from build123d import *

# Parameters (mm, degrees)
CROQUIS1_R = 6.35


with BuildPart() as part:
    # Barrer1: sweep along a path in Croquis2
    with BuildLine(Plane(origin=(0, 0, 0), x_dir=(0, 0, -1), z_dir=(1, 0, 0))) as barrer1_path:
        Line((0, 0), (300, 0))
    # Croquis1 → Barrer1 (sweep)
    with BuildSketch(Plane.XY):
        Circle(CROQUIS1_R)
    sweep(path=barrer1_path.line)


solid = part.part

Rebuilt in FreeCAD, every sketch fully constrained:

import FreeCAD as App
import Part
import Sketcher

V = App.Vector

doc = App.newDocument("Part")
body = doc.addObject("PartDesign::Body", "Body")

# Sketch on XY plane
sketch1 = body.newObject("Sketcher::SketchObject", "Sketch")
sketch1.AttachmentSupport = (doc.getObject("XY_Plane"), [""])
sketch1.MapMode = "FlatFace"
sketch1.addGeometry(Part.Circle(V(0, 0, 0), V(0, 0, 1), 6), False)
sketch1.addConstraint(Sketcher.Constraint("Coincident", 0, 3, -1, 1))
sketch1.addConstraint(Sketcher.Constraint("Diameter", 0, 12.7))

# Sketch on XZ plane
sketch2 = body.newObject("Sketcher::SketchObject", "Sketch001")
sketch2.AttachmentSupport = (doc.getObject("XZ_Plane"), [""])
sketch2.MapMode = "FlatFace"
sketch2.addGeometry(Part.LineSegment(V(0, 0, 0), V(0, -300, 0)), False)
sketch2.addConstraint(Sketcher.Constraint("Vertical", 0))
sketch2.addConstraint(Sketcher.Constraint("Coincident", 0, 1, -1, 1))
sketch2.addConstraint(Sketcher.Constraint("DistanceY", 0, 2, 0, 1, 300.0))
doc.recompute()

additivepipe = body.newObject("PartDesign::AdditivePipe", "AdditivePipe")
additivepipe.Profile = sketch1
additivepipe.Spine = (sketch2, ["Edge1"])

doc.recompute()
